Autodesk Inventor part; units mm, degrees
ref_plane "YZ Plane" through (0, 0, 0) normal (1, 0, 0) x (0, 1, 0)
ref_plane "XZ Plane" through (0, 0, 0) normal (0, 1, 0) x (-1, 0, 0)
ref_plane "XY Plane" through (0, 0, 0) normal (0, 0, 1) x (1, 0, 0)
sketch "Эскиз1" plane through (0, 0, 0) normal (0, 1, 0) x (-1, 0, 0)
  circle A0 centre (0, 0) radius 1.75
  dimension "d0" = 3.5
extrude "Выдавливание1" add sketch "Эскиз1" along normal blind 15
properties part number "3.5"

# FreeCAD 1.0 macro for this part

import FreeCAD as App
import Part
import Sketcher

V = App.Vector
Q = App.Units.Quantity

doc = App.newDocument("Part")
body = doc.addObject("PartDesign::Body", "Body")

sketch1 = body.newObject("Sketcher::SketchObject", "Sketch")
sketch1.AttachmentSupport = (doc.getObject("XZ_Plane"), [""])
sketch1.MapMode = "FlatFace"
sketch1.addGeometry(Part.Circle(V(0, 0, 0), V(0, 0, 1), 1.8), False)
sketch1.addConstraint([
    Sketcher.Constraint("Coincident", 0, 3, -1, 1),
    Sketcher.Constraint("Diameter", 0, Q("3.5 mm")),
])
pad1 = body.newObject("PartDesign::Pad", "Pad")
pad1.Profile = sketch1
pad1.Length = 15
pad1.Reversed = True

doc.recompute()
